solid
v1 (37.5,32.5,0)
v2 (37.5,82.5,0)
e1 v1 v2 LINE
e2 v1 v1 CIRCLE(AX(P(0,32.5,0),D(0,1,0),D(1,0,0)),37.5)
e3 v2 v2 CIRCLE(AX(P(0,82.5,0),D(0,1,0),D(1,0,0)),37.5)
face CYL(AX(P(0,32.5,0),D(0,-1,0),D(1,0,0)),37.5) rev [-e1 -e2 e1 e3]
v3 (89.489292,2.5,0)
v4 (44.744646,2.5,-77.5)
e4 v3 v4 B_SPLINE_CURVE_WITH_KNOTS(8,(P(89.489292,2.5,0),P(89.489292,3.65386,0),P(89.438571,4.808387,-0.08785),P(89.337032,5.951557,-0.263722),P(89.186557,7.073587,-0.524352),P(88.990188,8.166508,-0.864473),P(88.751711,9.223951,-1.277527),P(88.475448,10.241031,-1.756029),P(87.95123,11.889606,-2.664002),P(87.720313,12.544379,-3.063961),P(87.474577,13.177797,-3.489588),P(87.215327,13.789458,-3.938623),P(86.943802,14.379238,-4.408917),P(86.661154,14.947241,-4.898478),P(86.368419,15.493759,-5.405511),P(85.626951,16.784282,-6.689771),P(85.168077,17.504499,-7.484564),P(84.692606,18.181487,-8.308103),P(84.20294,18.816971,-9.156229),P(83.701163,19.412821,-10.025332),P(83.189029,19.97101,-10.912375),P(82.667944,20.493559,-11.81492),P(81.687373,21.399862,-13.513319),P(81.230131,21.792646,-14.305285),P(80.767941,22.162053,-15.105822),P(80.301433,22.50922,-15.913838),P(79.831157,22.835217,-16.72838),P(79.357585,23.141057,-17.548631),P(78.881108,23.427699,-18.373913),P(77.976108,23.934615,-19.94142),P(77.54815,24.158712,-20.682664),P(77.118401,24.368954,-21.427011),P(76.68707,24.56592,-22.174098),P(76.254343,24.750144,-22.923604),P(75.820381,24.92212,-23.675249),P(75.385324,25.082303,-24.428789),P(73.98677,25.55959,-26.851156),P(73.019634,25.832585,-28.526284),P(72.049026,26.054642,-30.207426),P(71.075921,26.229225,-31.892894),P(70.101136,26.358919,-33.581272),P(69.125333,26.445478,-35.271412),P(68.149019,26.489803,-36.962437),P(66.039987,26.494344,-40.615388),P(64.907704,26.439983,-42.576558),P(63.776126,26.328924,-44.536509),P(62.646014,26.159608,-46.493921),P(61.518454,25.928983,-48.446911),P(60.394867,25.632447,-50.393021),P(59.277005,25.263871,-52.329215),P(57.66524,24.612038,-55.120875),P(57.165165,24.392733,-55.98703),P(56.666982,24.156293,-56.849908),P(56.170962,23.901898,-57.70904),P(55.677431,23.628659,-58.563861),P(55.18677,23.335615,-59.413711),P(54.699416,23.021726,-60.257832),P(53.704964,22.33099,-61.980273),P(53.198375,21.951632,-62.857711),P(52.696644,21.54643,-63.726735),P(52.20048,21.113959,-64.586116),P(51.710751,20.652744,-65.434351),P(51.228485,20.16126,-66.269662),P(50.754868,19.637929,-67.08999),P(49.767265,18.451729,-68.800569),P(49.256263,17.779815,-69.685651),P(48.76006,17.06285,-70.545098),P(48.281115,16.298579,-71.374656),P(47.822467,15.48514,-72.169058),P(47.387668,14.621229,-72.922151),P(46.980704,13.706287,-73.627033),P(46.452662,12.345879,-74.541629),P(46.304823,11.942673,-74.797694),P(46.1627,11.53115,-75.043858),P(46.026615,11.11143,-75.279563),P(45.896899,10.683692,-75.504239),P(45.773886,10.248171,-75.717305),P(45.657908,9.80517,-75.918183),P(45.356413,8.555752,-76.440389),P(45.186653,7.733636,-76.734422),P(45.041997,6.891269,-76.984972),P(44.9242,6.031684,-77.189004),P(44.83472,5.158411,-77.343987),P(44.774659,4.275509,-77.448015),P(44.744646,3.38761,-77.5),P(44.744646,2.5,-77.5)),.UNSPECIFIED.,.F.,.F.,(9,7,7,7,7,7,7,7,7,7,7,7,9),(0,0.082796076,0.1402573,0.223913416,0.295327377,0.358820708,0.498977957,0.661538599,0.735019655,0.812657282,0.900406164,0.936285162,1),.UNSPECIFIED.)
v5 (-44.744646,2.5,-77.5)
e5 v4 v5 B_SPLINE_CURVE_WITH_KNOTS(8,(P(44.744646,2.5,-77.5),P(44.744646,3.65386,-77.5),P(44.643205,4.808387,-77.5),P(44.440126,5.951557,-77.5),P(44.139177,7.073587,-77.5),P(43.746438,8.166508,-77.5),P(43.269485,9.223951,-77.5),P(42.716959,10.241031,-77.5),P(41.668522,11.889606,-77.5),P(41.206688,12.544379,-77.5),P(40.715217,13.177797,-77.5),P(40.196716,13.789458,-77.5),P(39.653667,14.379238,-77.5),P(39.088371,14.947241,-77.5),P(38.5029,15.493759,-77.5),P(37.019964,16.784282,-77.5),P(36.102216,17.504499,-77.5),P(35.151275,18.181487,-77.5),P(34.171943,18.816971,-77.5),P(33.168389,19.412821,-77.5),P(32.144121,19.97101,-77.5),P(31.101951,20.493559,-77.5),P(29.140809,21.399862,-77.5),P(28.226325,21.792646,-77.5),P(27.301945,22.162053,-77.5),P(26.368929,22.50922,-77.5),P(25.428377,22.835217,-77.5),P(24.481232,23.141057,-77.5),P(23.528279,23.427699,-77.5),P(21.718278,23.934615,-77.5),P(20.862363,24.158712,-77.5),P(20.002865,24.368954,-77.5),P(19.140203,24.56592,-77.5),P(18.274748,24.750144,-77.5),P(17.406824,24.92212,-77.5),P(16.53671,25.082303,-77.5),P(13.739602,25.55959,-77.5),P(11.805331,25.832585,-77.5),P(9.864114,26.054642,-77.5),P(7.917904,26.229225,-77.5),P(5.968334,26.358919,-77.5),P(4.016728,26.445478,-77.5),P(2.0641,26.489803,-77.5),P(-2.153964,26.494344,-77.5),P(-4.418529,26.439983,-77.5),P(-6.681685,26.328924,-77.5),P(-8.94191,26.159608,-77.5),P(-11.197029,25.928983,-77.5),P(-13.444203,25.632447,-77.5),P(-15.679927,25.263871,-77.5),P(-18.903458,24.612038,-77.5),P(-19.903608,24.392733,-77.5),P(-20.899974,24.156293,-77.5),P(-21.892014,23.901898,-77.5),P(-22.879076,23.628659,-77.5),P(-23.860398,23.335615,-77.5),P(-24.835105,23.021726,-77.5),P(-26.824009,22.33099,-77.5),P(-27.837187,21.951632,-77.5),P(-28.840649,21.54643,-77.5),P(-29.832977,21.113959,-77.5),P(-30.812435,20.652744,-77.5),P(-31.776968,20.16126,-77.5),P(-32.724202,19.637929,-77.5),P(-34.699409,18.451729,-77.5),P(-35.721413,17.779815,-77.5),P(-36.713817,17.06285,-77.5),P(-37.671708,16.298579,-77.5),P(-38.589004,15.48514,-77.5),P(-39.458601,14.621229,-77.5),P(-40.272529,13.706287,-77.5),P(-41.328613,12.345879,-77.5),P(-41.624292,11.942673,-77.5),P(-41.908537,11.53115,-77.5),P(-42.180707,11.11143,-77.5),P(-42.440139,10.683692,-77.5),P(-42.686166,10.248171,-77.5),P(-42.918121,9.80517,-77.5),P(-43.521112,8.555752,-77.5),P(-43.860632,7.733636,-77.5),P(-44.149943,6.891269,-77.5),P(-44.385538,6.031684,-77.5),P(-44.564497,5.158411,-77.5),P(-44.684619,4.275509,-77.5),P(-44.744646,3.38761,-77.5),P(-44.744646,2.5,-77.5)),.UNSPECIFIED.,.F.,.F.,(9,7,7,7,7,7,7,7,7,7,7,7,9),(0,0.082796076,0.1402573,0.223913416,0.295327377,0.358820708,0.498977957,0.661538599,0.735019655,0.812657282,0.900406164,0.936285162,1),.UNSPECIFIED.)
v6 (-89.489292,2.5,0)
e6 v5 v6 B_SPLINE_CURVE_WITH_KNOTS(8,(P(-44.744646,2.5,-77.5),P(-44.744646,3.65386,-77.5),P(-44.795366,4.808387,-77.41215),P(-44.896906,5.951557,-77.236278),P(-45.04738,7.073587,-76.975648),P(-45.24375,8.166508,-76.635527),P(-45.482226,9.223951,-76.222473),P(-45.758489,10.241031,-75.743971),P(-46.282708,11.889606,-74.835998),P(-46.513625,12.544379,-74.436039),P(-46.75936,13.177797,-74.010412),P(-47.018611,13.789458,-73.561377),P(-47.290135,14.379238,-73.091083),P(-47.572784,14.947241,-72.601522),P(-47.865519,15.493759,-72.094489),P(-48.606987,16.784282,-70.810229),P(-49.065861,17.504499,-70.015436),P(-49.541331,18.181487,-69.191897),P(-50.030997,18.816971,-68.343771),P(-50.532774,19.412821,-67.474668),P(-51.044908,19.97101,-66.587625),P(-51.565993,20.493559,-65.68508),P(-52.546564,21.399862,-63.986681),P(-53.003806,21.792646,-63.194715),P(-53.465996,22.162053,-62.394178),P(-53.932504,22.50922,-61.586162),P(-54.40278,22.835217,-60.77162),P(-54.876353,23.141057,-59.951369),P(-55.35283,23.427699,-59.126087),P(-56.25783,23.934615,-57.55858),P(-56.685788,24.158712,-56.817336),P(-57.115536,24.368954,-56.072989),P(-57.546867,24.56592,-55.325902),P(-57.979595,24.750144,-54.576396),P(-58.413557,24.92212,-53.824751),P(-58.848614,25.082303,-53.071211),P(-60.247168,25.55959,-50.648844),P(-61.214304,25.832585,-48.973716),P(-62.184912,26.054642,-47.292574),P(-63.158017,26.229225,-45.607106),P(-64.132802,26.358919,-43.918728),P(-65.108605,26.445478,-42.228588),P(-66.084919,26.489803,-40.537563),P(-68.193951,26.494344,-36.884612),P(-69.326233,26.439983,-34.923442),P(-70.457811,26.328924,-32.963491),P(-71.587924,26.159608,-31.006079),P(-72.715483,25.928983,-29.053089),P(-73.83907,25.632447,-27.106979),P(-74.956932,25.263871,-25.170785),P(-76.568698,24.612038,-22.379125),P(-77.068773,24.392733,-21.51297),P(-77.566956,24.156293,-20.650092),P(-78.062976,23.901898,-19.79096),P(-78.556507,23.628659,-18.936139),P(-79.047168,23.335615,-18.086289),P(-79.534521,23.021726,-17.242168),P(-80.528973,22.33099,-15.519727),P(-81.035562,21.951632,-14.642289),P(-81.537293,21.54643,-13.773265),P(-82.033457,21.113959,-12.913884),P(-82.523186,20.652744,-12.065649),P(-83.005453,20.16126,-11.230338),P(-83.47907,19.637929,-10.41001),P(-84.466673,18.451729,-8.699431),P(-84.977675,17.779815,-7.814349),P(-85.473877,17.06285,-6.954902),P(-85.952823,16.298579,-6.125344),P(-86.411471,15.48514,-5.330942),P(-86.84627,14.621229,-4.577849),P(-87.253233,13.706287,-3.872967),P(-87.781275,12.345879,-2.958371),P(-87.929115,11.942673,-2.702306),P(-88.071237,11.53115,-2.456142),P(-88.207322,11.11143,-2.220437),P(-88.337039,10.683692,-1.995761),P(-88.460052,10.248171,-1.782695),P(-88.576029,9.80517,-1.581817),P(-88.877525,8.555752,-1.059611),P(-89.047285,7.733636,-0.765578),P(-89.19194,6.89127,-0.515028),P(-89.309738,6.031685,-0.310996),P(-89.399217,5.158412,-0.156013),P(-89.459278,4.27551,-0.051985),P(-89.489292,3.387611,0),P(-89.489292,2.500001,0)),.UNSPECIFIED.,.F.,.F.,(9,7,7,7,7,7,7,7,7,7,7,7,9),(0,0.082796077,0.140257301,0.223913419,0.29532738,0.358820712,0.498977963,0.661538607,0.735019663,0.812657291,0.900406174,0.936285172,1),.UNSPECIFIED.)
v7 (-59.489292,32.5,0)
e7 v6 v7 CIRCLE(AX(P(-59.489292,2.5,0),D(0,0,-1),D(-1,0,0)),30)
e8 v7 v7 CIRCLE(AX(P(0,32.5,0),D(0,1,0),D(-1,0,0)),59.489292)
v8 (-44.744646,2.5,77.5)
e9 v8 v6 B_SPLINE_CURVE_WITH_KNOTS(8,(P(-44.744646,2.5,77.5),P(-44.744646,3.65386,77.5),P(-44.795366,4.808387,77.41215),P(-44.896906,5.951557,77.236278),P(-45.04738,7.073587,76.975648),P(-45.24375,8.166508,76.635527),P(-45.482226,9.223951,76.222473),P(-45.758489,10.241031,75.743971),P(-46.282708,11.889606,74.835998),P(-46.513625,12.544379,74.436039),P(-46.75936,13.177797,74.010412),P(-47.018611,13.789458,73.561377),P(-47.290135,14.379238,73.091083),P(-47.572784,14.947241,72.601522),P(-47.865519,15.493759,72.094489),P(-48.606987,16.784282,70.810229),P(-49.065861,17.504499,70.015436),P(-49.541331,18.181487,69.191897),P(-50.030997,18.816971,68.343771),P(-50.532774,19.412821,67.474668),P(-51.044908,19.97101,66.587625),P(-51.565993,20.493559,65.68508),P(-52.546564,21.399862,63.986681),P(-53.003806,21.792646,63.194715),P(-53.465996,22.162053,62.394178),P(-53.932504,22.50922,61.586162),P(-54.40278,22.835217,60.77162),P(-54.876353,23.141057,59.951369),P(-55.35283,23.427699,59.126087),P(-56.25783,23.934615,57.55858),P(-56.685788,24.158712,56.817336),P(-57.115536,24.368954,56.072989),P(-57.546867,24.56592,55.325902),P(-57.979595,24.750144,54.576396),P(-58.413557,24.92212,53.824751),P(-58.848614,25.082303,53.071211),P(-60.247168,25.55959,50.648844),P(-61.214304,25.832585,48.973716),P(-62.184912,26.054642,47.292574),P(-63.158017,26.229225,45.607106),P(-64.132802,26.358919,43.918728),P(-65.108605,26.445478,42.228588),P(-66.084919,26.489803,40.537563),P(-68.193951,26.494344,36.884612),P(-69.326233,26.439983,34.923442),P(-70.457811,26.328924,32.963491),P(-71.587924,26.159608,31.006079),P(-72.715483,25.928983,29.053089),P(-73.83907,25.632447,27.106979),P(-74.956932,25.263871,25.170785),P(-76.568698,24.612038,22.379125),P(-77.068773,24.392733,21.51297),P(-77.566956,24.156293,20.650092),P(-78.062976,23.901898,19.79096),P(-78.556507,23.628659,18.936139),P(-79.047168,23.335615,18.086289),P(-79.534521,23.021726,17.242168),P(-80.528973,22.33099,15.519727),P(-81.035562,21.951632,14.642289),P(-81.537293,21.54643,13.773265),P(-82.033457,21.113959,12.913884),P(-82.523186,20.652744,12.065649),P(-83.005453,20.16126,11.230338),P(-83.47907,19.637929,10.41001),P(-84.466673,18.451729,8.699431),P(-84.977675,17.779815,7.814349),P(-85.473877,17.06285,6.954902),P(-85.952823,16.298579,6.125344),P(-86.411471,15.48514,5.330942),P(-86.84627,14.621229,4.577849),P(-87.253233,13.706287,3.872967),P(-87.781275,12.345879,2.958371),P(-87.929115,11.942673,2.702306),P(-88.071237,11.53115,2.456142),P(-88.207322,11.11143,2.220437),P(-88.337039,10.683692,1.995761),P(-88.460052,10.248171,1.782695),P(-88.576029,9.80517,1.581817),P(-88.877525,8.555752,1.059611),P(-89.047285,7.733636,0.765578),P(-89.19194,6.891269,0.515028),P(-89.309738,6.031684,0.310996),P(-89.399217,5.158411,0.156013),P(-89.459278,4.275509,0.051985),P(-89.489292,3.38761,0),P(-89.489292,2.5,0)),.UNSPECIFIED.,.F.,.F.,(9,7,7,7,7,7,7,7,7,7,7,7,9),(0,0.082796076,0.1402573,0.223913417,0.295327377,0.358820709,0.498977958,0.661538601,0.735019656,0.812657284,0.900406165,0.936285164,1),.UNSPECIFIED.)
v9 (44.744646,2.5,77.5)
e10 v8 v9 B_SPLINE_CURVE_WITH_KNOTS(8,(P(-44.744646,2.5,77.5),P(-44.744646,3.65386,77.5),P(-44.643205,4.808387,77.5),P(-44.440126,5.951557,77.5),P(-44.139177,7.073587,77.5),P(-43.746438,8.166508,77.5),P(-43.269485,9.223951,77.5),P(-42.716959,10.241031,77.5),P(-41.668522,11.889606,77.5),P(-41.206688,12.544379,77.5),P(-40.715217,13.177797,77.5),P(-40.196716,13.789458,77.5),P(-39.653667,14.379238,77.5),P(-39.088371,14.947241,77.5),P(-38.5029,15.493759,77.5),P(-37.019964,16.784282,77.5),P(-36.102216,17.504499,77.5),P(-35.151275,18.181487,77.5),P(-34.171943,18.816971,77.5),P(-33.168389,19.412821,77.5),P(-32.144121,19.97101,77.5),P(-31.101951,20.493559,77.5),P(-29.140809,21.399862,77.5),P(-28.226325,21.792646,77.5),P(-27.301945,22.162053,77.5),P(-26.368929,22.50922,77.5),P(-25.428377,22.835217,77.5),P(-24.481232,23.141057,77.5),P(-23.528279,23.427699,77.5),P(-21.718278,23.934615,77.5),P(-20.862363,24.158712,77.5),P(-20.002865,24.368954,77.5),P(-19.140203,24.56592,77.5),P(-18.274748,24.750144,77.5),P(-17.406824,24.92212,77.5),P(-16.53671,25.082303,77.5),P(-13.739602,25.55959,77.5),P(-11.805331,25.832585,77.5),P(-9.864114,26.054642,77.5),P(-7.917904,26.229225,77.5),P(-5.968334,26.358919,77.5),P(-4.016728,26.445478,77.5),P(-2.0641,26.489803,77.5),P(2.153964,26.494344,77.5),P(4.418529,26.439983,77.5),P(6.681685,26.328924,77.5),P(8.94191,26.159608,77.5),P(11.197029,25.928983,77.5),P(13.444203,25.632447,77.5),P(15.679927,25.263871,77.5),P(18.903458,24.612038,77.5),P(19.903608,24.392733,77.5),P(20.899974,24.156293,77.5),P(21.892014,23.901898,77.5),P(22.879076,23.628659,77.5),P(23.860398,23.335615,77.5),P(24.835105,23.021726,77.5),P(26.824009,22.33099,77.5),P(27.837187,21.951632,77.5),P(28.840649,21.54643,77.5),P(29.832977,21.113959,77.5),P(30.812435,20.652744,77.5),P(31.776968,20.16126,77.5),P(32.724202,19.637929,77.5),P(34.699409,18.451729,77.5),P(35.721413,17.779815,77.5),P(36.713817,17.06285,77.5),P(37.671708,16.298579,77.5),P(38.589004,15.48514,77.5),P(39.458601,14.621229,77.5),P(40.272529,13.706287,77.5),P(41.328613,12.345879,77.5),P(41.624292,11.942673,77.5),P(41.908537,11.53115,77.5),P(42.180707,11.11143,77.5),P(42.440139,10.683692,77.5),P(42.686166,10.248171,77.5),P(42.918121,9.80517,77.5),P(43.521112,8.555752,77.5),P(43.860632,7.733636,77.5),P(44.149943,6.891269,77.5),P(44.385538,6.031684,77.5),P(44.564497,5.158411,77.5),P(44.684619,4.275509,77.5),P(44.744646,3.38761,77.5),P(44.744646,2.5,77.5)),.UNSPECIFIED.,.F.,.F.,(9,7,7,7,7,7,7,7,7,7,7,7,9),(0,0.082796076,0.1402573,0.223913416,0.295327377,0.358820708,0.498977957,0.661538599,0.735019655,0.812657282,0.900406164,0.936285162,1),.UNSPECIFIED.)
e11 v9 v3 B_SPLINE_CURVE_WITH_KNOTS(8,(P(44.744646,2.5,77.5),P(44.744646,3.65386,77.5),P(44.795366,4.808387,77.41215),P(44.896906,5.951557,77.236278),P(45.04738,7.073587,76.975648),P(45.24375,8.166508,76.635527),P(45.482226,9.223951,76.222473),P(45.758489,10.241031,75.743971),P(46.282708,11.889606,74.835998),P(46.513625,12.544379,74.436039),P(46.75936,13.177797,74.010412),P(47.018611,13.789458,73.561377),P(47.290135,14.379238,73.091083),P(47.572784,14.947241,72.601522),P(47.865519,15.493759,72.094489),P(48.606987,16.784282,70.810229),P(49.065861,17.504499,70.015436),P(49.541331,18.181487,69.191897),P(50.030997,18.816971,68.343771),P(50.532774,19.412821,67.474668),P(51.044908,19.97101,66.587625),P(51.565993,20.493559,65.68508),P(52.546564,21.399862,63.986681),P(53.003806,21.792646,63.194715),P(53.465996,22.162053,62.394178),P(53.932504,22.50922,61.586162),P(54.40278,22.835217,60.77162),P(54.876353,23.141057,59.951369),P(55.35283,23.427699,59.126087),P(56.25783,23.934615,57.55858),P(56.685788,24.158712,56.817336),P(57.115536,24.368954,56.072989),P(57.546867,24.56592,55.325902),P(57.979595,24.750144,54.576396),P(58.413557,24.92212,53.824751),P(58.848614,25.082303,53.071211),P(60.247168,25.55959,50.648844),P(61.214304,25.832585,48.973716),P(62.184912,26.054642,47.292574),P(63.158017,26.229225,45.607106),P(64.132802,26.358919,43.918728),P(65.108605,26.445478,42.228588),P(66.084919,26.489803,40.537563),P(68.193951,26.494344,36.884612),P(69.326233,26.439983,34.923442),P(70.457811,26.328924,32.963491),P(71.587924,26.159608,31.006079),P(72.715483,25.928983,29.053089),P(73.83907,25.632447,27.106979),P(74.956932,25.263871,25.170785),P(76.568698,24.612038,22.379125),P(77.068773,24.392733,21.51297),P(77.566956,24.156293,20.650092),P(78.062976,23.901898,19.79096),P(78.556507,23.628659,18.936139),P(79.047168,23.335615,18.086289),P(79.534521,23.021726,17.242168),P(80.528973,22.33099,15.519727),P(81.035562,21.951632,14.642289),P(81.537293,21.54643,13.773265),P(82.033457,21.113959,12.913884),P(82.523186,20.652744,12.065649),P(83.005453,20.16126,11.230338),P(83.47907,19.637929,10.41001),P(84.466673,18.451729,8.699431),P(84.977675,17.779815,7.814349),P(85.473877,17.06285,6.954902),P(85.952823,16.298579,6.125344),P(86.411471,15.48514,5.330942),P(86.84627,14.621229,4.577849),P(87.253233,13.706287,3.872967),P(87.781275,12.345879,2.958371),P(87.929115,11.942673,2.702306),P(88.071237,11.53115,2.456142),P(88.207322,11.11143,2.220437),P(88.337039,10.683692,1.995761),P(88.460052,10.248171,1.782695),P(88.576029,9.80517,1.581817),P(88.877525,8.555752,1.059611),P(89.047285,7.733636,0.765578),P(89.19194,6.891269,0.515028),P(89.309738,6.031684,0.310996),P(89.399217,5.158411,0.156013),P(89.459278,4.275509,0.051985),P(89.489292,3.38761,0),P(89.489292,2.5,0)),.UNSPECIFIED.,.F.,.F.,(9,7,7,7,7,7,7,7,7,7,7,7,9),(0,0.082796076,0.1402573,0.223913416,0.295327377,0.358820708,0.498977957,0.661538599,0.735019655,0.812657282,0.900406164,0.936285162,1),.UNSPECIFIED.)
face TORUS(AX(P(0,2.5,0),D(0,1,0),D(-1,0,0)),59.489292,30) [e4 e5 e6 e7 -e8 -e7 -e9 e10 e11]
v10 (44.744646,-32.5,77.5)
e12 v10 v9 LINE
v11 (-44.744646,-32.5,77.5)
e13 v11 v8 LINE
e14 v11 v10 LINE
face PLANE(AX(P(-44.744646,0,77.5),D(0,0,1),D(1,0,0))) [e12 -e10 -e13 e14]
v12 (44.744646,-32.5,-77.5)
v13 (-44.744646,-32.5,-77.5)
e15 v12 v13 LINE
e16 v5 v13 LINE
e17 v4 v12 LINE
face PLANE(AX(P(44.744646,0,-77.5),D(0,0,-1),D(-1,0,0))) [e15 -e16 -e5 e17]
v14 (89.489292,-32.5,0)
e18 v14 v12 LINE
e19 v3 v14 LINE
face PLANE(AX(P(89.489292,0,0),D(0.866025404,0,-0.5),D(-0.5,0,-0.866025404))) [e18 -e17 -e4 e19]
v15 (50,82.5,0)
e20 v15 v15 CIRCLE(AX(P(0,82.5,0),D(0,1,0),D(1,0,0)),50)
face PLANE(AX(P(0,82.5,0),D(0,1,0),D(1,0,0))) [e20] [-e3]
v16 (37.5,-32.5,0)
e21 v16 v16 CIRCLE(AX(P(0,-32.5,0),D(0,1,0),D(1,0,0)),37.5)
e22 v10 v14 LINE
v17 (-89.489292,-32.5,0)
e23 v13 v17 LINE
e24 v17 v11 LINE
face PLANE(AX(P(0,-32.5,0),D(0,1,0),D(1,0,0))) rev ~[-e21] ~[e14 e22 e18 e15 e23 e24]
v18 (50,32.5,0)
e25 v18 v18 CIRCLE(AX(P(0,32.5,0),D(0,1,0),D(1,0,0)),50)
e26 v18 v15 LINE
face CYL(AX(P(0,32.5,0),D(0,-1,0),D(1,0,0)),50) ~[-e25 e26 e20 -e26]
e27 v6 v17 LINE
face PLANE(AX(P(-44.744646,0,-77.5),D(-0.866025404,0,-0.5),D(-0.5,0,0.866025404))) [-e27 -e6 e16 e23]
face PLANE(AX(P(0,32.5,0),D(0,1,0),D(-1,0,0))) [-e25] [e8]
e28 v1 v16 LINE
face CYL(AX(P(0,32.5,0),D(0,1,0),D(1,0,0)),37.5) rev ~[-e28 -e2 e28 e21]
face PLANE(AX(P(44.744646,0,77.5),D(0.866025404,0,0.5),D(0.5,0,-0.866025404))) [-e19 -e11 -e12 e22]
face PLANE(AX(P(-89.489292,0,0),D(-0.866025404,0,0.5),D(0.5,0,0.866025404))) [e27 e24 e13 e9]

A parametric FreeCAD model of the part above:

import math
import FreeCAD as App
import Part
import Sketcher
from FreeCAD import Vector
Q = App.Units.Quantity


def add_polygon(sketch, points):
    """Adds a closed chain of lines whose ends are joined by coincident constraints."""
    first, n = sketch.GeometryCount, len(points)
    for a, b in zip(points, points[1:] + points[:1]):
        sketch.addGeometry(Part.LineSegment(App.Vector(*a, 0), App.Vector(*b, 0)), False)
    for i in range(n):
        sketch.addConstraint(Sketcher.Constraint("Coincident", first + i, 2, first + (i + 1) % n, 1))

doc = App.newDocument("Part")
body = doc.addObject("PartDesign::Body", "Body")

sketch1 = doc.addObject("Sketcher::SketchObject", "Sketch")
body.addObject(sketch1)
sketch1.AttachmentSupport = (doc.XZ_Plane, [""])
sketch1.MapMode = "FlatFace"
add_polygon(sketch1, [(-89.489292, 0), (-44.744646, 77.5), (44.744646, 77.5), (89.489292, 0), (44.744646, -77.5), (-44.744646, -77.5)])
sketch1.addConstraint(Sketcher.Constraint("Horizontal", 1))
sketch1.addConstraint(Sketcher.Constraint("Horizontal", 4))
sketch1.addConstraint(Sketcher.Constraint("Symmetric", 0, 2, 3, 2, -1, 1))
sketch1.addConstraint(Sketcher.Constraint("Symmetric", 2, 2, 5, 2, -1, 1))
sketch1.addConstraint(Sketcher.Constraint("PointOnObject", 2, 2, -1))
sketch1.addConstraint(Sketcher.Constraint("Parallel", 2, 5))
sketch1.addConstraint(Sketcher.Constraint("Vertical", 1, 2, 3, 2))
sketch1.addConstraint(Sketcher.Constraint("Angle", 0, Q("60 deg")))
sketch1.addConstraint(Sketcher.Constraint("DistanceY", 3, 2, 1, 2, Q("155 mm")))
sketch1.addConstraint(Sketcher.Constraint("DistanceX", 1, 1, 1, 2, Q("89.489292 mm")))
pad1 = doc.addObject("PartDesign::Pad", "Pad")
body.addObject(pad1)
pad1.Profile = sketch1
pad1.Length = 65
pad1.Midplane = True

sketch2 = doc.addObject("Sketcher::SketchObject", "Sketch001")
body.addObject(sketch2)
sketch2.AttachmentSupport = (doc.XY_Plane, [""])
sketch2.MapMode = "FlatFace"
sketch2.addGeometry(Part.LineSegment(Vector(-59.489292, 32.5, 0), Vector(-57.951386, 32.5, 0)), False)
sketch2.addGeometry(Part.LineSegment(Vector(-57.951386, 32.5, 0), Vector(-79.245812, 59.780713, 0)), False)
sketch2.addGeometry(Part.LineSegment(Vector(-79.245812, 59.780713, 0), Vector(-106.219124, 23.051453, 0)), False)
sketch2.addGeometry(Part.LineSegment(Vector(-106.219124, 23.051453, 0), Vector(-89.489292, -3.938999, 0)), False)
sketch2.addGeometry(Part.LineSegment(Vector(-89.489292, -3.938999, 0), Vector(-89.489292, 2.5, 0)), False)
sketch2.addGeometry(Part.ArcOfCircle(Part.Circle(Vector(-59.489292, 2.5, 0), Vector(0, 0, 1), 30), math.radians(90), math.radians(180)), False)
sketch2.addConstraint(Sketcher.Constraint("Coincident", 0, 2, 1, 1))
sketch2.addConstraint(Sketcher.Constraint("Coincident", 1, 2, 2, 1))
sketch2.addConstraint(Sketcher.Constraint("Coincident", 2, 2, 3, 1))
sketch2.addConstraint(Sketcher.Constraint("Coincident", 3, 2, 4, 1))
sketch2.addConstraint(Sketcher.Constraint("Tangent", 4, 2, 5, 2))
sketch2.addConstraint(Sketcher.Constraint("Tangent", 5, 1, 0, 1))
sketch2.addConstraint(Sketcher.Constraint("Horizontal", 0))
sketch2.addConstraint(Sketcher.Constraint("Vertical", 4))
sketch2.addConstraint(Sketcher.Constraint("Radius", 5, Q("30 mm")))
sketch2.addConstraint(Sketcher.Constraint("DistanceY", -1, 1, 5, 3, Q("2.5 mm")))
sketch2.addConstraint(Sketcher.Constraint("DistanceY", 4, 1, 4, 2, Q("6.438999 mm")))
sketch2.addConstraint(Sketcher.Constraint("Distance", 3, Q("31.75487 mm")))
sketch2.addConstraint(Sketcher.Constraint("DistanceX", 0, 1, 0, 2, Q("1.537906 mm")))
sketch2.addConstraint(Sketcher.Constraint("DistanceX", 5, 3, -1, 1, Q("59.489292 mm")))
sketch2.addConstraint(Sketcher.Constraint("DistanceX", 1, 2, -1, 1, Q("79.245812 mm")))
sketch2.addConstraint(Sketcher.Constraint("DistanceX", 2, 2, 1, 2, Q("26.973312 mm")))
sketch2.addConstraint(Sketcher.Constraint("DistanceY", 2, 2, 1, 2, Q("36.72926 mm")))
groove = doc.addObject("PartDesign::Groove", "Groove")
body.addObject(groove)
groove.Profile = sketch2
groove.ReferenceAxis = (sketch2, ["V_Axis"])
groove.Angle = 360

sketch3 = doc.addObject("Sketcher::SketchObject", "Sketch002")
body.addObject(sketch3)
sketch3.AttachmentSupport = (doc.XZ_Plane, [""])
sketch3.MapMode = "FlatFace"
sketch3.AttachmentOffset = App.Placement(Vector(0, 0, -32.5), App.Rotation())
sketch3.addGeometry(Part.Circle(Vector(0, 0, 0), Vector(0, 0, 1), 50), False)
sketch3.addGeometry(Part.Circle(Vector(0, 0, 0), Vector(0, 0, 1), 37.5), False)
sketch3.addConstraint(Sketcher.Constraint("Coincident", 0, 3, -1, 1))
sketch3.addConstraint(Sketcher.Constraint("Coincident", 1, 3, -1, 1))
sketch3.addConstraint(Sketcher.Constraint("Diameter", 0, Q("100 mm")))
sketch3.addConstraint(Sketcher.Constraint("Diameter", 1, Q("75 mm")))
pad2 = doc.addObject("PartDesign::Pad", "Pad001")
body.addObject(pad2)
pad2.Profile = sketch3
pad2.Length = 50
pad2.Reversed = True

sketch4 = doc.addObject("Sketcher::SketchObject", "Sketch003")
body.addObject(sketch4)
sketch4.AttachmentSupport = (doc.XZ_Plane, [""])
sketch4.MapMode = "FlatFace"
sketch4.AttachmentOffset = App.Placement(Vector(0, 0, -32.5), App.Rotation())
sketch4.addGeometry(Part.Circle(Vector(0, 0, 0), Vector(0, 0, 1), 37.5), False)
sketch4.addConstraint(Sketcher.Constraint("Coincident", 0, 3, -1, 1))
sketch4.addConstraint(Sketcher.Constraint("Diameter", 0, Q("75 mm")))
pocket1 = doc.addObject("PartDesign::Pocket", "Pocket")
body.addObject(pocket1)
pocket1.Profile = sketch4
pocket1.Length = 94
pocket1.Reversed = True

doc.recompute()
